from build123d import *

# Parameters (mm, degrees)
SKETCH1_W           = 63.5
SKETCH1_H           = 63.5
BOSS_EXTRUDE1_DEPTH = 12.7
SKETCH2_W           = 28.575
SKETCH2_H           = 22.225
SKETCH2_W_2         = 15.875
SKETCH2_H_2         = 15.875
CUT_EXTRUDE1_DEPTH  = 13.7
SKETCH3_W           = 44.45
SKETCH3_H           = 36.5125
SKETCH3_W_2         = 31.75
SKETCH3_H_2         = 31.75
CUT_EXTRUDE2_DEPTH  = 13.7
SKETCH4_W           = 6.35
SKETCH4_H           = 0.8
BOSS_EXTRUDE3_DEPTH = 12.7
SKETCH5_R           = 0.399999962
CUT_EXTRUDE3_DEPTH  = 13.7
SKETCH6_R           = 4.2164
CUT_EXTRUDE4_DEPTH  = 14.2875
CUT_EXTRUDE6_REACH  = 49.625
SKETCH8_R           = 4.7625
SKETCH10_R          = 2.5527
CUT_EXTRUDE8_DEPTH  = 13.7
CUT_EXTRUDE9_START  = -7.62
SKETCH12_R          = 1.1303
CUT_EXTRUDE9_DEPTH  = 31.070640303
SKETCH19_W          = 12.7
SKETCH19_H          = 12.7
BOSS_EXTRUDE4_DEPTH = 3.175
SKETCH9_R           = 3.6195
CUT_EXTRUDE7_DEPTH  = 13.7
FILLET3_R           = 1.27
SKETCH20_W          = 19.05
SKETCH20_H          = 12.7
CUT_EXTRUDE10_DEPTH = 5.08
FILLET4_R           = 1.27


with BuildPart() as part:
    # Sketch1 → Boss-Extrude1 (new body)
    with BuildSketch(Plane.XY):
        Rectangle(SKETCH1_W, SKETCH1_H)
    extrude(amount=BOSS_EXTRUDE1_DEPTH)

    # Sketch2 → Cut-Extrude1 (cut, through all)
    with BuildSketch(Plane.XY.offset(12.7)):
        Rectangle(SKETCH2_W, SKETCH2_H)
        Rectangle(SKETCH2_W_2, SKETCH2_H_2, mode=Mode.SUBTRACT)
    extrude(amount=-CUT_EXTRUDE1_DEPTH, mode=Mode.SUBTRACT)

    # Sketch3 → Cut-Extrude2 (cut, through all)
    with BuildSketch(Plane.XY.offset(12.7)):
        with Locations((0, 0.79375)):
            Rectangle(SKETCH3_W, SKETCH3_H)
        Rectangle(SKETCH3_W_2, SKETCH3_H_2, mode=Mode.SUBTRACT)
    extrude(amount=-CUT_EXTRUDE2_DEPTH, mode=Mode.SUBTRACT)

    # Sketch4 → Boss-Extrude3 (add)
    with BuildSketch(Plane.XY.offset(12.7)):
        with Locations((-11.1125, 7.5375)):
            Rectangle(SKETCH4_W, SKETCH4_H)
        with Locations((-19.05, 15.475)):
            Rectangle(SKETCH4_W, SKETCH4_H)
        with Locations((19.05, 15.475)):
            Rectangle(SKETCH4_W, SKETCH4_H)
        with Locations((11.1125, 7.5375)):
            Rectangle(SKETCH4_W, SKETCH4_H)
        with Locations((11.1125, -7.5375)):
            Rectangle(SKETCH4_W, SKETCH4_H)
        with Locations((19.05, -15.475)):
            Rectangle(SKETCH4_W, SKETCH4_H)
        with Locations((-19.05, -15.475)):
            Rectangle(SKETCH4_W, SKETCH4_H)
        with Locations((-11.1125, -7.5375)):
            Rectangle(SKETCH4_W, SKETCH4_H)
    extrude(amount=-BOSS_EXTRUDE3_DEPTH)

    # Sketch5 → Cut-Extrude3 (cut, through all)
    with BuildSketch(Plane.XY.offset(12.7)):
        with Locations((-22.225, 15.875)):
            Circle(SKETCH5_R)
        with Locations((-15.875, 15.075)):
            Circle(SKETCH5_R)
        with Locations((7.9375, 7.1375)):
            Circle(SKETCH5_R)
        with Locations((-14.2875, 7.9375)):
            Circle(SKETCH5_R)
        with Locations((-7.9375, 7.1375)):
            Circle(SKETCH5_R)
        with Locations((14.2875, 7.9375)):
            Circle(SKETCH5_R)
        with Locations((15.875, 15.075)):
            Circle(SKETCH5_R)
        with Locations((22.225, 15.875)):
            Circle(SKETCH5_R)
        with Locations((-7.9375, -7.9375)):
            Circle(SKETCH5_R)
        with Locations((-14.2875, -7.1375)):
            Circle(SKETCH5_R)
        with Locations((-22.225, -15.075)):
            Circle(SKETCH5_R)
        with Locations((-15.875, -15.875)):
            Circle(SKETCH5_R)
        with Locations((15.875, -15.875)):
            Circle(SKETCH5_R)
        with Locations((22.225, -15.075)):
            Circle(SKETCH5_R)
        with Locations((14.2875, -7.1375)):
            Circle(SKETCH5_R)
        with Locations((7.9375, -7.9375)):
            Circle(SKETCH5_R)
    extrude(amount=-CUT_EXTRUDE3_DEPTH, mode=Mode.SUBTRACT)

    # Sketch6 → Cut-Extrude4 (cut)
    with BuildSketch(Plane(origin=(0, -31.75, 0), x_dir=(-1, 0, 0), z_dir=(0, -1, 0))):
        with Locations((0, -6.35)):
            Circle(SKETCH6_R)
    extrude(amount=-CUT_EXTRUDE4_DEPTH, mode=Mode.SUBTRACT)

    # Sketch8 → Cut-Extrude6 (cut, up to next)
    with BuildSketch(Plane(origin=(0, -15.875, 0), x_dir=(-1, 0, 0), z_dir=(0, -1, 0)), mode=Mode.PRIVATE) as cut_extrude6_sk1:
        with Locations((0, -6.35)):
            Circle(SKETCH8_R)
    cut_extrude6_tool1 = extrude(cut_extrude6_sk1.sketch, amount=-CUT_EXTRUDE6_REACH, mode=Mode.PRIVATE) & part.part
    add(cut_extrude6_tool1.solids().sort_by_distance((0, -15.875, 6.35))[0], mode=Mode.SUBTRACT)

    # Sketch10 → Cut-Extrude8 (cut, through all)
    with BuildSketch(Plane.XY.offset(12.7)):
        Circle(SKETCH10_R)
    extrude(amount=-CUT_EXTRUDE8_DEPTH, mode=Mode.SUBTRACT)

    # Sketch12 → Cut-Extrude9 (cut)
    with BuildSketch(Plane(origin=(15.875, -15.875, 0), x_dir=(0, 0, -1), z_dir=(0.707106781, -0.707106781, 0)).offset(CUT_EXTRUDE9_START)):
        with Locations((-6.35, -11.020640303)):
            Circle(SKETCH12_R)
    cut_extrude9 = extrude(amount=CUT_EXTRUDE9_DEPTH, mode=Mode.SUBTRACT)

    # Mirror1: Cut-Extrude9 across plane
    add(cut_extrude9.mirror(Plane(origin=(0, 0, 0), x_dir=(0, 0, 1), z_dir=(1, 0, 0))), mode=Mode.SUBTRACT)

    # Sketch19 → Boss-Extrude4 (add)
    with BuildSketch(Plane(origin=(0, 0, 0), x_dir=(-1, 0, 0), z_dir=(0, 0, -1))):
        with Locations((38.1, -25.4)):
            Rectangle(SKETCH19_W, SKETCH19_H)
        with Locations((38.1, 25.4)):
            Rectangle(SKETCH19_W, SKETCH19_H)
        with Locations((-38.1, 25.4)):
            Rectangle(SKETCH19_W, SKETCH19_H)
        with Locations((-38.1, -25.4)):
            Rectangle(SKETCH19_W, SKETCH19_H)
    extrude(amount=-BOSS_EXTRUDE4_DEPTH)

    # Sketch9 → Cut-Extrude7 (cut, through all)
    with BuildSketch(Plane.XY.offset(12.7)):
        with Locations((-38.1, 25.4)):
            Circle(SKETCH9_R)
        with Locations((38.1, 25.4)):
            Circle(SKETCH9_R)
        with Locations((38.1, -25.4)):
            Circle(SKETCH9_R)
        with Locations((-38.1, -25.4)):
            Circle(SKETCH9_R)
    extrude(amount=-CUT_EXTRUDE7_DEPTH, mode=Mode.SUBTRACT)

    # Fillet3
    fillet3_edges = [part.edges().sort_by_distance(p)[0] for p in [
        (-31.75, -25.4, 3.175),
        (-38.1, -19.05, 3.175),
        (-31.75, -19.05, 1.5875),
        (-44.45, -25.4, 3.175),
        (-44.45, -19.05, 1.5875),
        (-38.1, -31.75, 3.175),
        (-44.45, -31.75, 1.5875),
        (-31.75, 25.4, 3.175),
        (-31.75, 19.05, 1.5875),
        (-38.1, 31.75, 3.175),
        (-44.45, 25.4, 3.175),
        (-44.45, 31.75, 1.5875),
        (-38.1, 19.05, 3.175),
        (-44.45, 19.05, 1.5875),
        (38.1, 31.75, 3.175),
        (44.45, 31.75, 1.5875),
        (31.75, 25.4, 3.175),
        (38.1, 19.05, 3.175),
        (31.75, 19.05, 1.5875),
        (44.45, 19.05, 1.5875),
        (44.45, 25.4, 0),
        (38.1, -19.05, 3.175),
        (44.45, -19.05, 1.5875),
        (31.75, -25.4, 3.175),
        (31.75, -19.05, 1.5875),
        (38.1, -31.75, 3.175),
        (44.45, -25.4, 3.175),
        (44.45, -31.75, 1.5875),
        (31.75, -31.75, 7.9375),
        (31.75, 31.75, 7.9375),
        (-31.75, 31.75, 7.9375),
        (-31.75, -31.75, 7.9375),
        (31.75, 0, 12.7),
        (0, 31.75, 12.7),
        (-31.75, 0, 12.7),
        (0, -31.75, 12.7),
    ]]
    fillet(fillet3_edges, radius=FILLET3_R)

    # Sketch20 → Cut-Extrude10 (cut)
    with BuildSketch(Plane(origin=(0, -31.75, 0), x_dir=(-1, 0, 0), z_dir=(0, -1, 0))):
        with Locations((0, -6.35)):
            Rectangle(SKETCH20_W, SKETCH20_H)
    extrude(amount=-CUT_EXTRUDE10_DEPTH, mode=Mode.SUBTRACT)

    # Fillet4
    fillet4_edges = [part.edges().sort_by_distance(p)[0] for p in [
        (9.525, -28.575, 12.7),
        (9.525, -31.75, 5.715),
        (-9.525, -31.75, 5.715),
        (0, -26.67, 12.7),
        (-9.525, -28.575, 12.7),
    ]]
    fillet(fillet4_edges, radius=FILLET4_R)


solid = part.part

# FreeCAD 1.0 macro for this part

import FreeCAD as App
import Part
import Sketcher

V = App.Vector
Q = App.Units.Quantity


def edges_at(feature, points):
    """Names of the edges that pass closest to the given points."""
    edges = feature.Shape.Edges
    near = lambda p: min(range(len(edges)), key=lambda i: edges[i].distToShape(Part.Vertex(*p))[0])
    return sorted({f"Edge{near(p) + 1}" for p in points})

doc = App.newDocument("Part")
body = doc.addObject("PartDesign::Body", "Body")
body.AllowCompound = True

# Sketch on XY plane
sketch1 = body.newObject("Sketcher::SketchObject", "Sketch")
sketch1.AttachmentSupport = (doc.getObject("XY_Plane"), [""])
sketch1.MapMode = "FlatFace"
sketch1.addGeometry([
    Part.LineSegment(V(-32, 32, 0), V(-32, -32, 0)),
    Part.LineSegment(V(-32, -32, 0), V(32, -32, 0)),
    Part.LineSegment(V(32, -32, 0), V(32, 32, 0)),
    Part.LineSegment(V(32, 32, 0), V(-32, 32, 0)),
], False)
sketch1.addConstraint([
    Sketcher.Constraint("Coincident", 0, 2, 1, 1),
    Sketcher.Constraint("Coincident", 1, 2, 2, 1),
    Sketcher.Constraint("Coincident", 2, 2, 3, 1),
    Sketcher.Constraint("Coincident", 3, 2, 0, 1),
    Sketcher.Constraint("Vertical", 0),
    Sketcher.Constraint("Horizontal", 1),
    Sketcher.Constraint("Vertical", 2),
    Sketcher.Constraint("Horizontal", 3),
    Sketcher.Constraint("Symmetric", 0, 2, 2, 2, -1, 1),
    Sketcher.Constraint("Equal", 3, 0),
    Sketcher.Constraint("DistanceX", 1, 1, 1, 2, Q("2.5 in")),
])
pad1 = body.newObject("PartDesign::Pad", "Pad")
pad1.Profile = sketch1
pad1.Length = Q("0.5 in")

# Sketch on XY plane
sketch2 = body.newObject("Sketcher::SketchObject", "Sketch001")
sketch2.AttachmentSupport = (doc.getObject("XY_Plane"), [""])
sketch2.MapMode = "FlatFace"
sketch2.AttachmentOffset = App.Placement(V(0, 0, 0.5 * 25.4), App.Rotation())
sketch2.addGeometry([
    Part.LineSegment(V(-14, 11, 0), V(-14, -11, 0)),  # 0
    Part.LineSegment(V(-14, -11, 0), V(14, -11, 0)),  # 1
    Part.LineSegment(V(14, -11, 0), V(14, 11, 0)),  # 2
    Part.LineSegment(V(14, 11, 0), V(-14, 11, 0)),  # 3
    Part.LineSegment(V(8, -8, 0), V(-8, -8, 0)),  # 4
    Part.LineSegment(V(-8, -8, 0), V(-8, 8, 0)),  # 5
    Part.LineSegment(V(-8, 8, 0), V(8, 8, 0)),  # 6
    Part.LineSegment(V(8, 8, 0), V(8, -8, 0)),  # 7
], False)
sketch2.addConstraint([
    Sketcher.Constraint("Coincident", 0, 2, 1, 1),
    Sketcher.Constraint("Coincident", 1, 2, 2, 1),
    Sketcher.Constraint("Coincident", 2, 2, 3, 1),
    Sketcher.Constraint("Coincident", 3, 2, 0, 1),
    Sketcher.Constraint("Coincident", 4, 2, 5, 1),
    Sketcher.Constraint("Coincident", 5, 2, 6, 1),
    Sketcher.Constraint("Coincident", 6, 2, 7, 1),
    Sketcher.Constraint("Coincident", 7, 2, 4, 1),
    Sketcher.Constraint("Vertical", 0),
    Sketcher.Constraint("Horizontal", 1),
    Sketcher.Constraint("Vertical", 2),
    Sketcher.Constraint("Horizontal", 3),
    Sketcher.Constraint("Horizontal", 4),
    Sketcher.Constraint("Vertical", 5),
    Sketcher.Constraint("Horizontal", 6),
    Sketcher.Constraint("Vertical", 7),
    Sketcher.Constraint("Symmetric", 0, 2, 2, 2, -1, 1),
    Sketcher.Constraint("Symmetric", 4, 2, 6, 2, -1, 1),
    Sketcher.Constraint("Equal", 6, 5),
    Sketcher.Constraint("DistanceX", 1, 1, 1, 2, Q("1.125 in")),
    Sketcher.Constraint("DistanceX", 4, 2, 4, 1, Q("0.625 in")),
    Sketcher.Constraint("DistanceY", 0, 2, 0, 1, Q("0.875 in")),
])
pocket1 = body.newObject("PartDesign::Pocket", "Pocket")
pocket1.Profile = sketch2
pocket1.Type = "ThroughAll"

# Sketch on XY plane
sketch3 = body.newObject("Sketcher::SketchObject", "Sketch002")
sketch3.AttachmentSupport = (doc.getObject("XY_Plane"), [""])
sketch3.MapMode = "FlatFace"
sketch3.AttachmentOffset = App.Placement(V(0, 0, 0.5 * 25.4), App.Rotation())
sketch3.addGeometry([
    Part.LineSegment(V(-22, 19, 0), V(-22, -17, 0)),  # 0
    Part.LineSegment(V(-22, -17, 0), V(22, -17, 0)),  # 1
    Part.LineSegment(V(22, -17, 0), V(22, 19, 0)),  # 2
    Part.LineSegment(V(22, 19, 0), V(-22, 19, 0)),  # 3
    Part.LineSegment(V(16, -16, 0), V(-16, -16, 0)),  # 4
    Part.LineSegment(V(-16, -16, 0), V(-16, 16, 0)),  # 5
    Part.LineSegment(V(-16, 16, 0), V(16, 16, 0)),  # 6
    Part.LineSegment(V(16, 16, 0), V(16, -16, 0)),  # 7
], False)
sketch3.addConstraint([
    Sketcher.Constraint("Coincident", 0, 2, 1, 1),
    Sketcher.Constraint("Coincident", 1, 2, 2, 1),
    Sketcher.Constraint("Coincident", 2, 2, 3, 1),
    Sketcher.Constraint("Coincident", 3, 2, 0, 1),
    Sketcher.Constraint("Coincident", 4, 2, 5, 1),
    Sketcher.Constraint("Coincident", 5, 2, 6, 1),
    Sketcher.Constraint("Coincident", 6, 2, 7, 1),
    Sketcher.Constraint("Coincident", 7, 2, 4, 1),
    Sketcher.Constraint("Vertical", 0),
    Sketcher.Constraint("Horizontal", 1),
    Sketcher.Constraint("Vertical", 2),
    Sketcher.Constraint("Horizontal", 3),
    Sketcher.Constraint("Horizontal", 4),
    Sketcher.Constraint("Vertical", 5),
    Sketcher.Constraint("Horizontal", 6),
    Sketcher.Constraint("Vertical", 7),
    Sketcher.Constraint("Symmetric", 4, 2, 6, 2, -1, 1),
    Sketcher.Constraint("Equal", 6, 5),
    Sketcher.Constraint("DistanceX", 1, 1, 1, 2, Q("1.75 in")),
    Sketcher.Constraint("DistanceX", 4, 2, 4, 1, Q("1.25 in")),
    Sketcher.Constraint("DistanceX", 4, 2, 1, 2, Q("1.5 in")),
    Sketcher.Constraint("DistanceY", 0, 2, 0, 1, Q("1.4375 in")),
    Sketcher.Constraint("DistanceY", -1, 1, 2, 2, Q("0.75 in")),
])
pocket2 = body.newObject("PartDesign::Pocket", "Pocket001")
pocket2.Profile = sketch3
pocket2.Type = "ThroughAll"

# Sketch on XY plane
sketch4 = body.newObject("Sketcher::SketchObject", "Sketch003")
sketch4.AttachmentSupport = (doc.getObject("XY_Plane"), [""])
sketch4.MapMode = "FlatFace"
sketch4.AttachmentOffset = App.Placement(V(0, 0, 0.5 * 25.4), App.Rotation())
sketch4.addGeometry([
    Part.LineSegment(V(-14.3, 7.9, 0), V(-14.3, 7.1, 0)),  # 0
    Part.LineSegment(V(-14.3, 7.1, 0), V(-7.9, 7.1, 0)),  # 1
    Part.LineSegment(V(-7.9, 7.1, 0), V(-7.9, 7.9, 0)),  # 2
    Part.LineSegment(V(-7.9, 7.9, 0), V(-14.3, 7.9, 0)),  # 3
    Part.LineSegment(V(-22.2, 15.9, 0), V(-22.2, 15.1, 0)),  # 4
    Part.LineSegment(V(-22.2, 15.1, 0), V(-15.9, 15.1, 0)),  # 5
    Part.LineSegment(V(-15.9, 15.1, 0), V(-15.9, 15.9, 0)),  # 6
    Part.LineSegment(V(-15.9, 15.9, 0), V(-22.2, 15.9, 0)),  # 7
    Part.LineSegment(V(15.9, 15.9, 0), V(15.9, 15.1, 0)),  # 8
    Part.LineSegment(V(15.9, 15.1, 0), V(22.2, 15.1, 0)),  # 9
    Part.LineSegment(V(22.2, 15.1, 0), V(22.2, 15.9, 0)),  # 10
    Part.LineSegment(V(22.2, 15.9, 0), V(15.9, 15.9, 0)),  # 11
    Part.LineSegment(V(7.9, 7.9, 0), V(7.9, 7.1, 0)),  # 12
    Part.LineSegment(V(7.9, 7.1, 0), V(14.3, 7.1, 0)),  # 13
    Part.LineSegment(V(14.3, 7.1, 0), V(14.3, 7.9, 0)),  # 14
    Part.LineSegment(V(14.3, 7.9, 0), V(7.9, 7.9, 0)),  # 15
    Part.LineSegment(V(7.9, -7.1, 0), V(7.9, -7.9, 0)),  # 16
    Part.LineSegment(V(7.9, -7.9, 0), V(14.3, -7.9, 0)),  # 17
    Part.LineSegment(V(14.3, -7.9, 0), V(14.3, -7.1, 0)),  # 18
    Part.LineSegment(V(14.3, -7.1, 0), V(7.9, -7.1, 0)),  # 19
    Part.LineSegment(V(15.9, -15.1, 0), V(15.9, -15.9, 0)),  # 20
    Part.LineSegment(V(15.9, -15.9, 0), V(22.2, -15.9, 0)),  # 21
    Part.LineSegment(V(22.2, -15.9, 0), V(22.2, -15.1, 0)),  # 22
    Part.LineSegment(V(22.2, -15.1, 0), V(15.9, -15.1, 0)),  # 23
    Part.LineSegment(V(-22.2, -15.1, 0), V(-22.2, -15.9, 0)),  # 24
    Part.LineSegment(V(-22.2, -15.9, 0), V(-15.9, -15.9, 0)),  # 25
    Part.LineSegment(V(-15.9, -15.9, 0), V(-15.9, -15.1, 0)),  # 26
    Part.LineSegment(V(-15.9, -15.1, 0), V(-22.2, -15.1, 0)),  # 27
    Part.LineSegment(V(-14.3, -7.1, 0), V(-14.3, -7.9, 0)),  # 28
    Part.LineSegment(V(-14.3, -7.9, 0), V(-7.9, -7.9, 0)),  # 29
    Part.LineSegment(V(-7.9, -7.9, 0), V(-7.9, -7.1, 0)),  # 30
    Part.LineSegment(V(-7.9, -7.1, 0), V(-14.3, -7.1, 0)),  # 31
], False)
sketch4.addConstraint([
    Sketcher.Constraint("Coincident", 0, 2, 1, 1),
    Sketcher.Constraint("Coincident", 1, 2, 2, 1),
    Sketcher.Constraint("Coincident", 2, 2, 3, 1),
    Sketcher.Constraint("Coincident", 3, 2, 0, 1),
    Sketcher.Constraint("Coincident", 4, 2, 5, 1),
    Sketcher.Constraint("Coincident", 5, 2, 6, 1),
    Sketcher.Constraint("Coincident", 6, 2, 7, 1),
    Sketcher.Constraint("Coincident", 7, 2, 4, 1),
    Sketcher.Constraint("Coincident", 8, 2, 9, 1),
    Sketcher.Constraint("Coincident", 9, 2, 10, 1),
    Sketcher.Constraint("Coincident", 10, 2, 11, 1),
    Sketcher.Constraint("Coincident", 11, 2, 8, 1),
    Sketcher.Constraint("Coincident", 12, 2, 13, 1),
    Sketcher.Constraint("Coincident", 13, 2, 14, 1),
    Sketcher.Constraint("Coincident", 14, 2, 15, 1),
    Sketcher.Constraint("Coincident", 15, 2, 12, 1),
    Sketcher.Constraint("Coincident", 16, 2, 17, 1),
    Sketcher.Constraint("Coincident", 17, 2, 18, 1),
    Sketcher.Constraint("Coincident", 18, 2, 19, 1),
    Sketcher.Constraint("Coincident", 19, 2, 16, 1),
    Sketcher.Constraint("Coincident", 20, 2, 21, 1),
    Sketcher.Constraint("Coincident", 21, 2, 22, 1),
    Sketcher.Constraint("Coincident", 22, 2, 23, 1),
    Sketcher.Constraint("Coincident", 23, 2, 20, 1),
    Sketcher.Constraint("Coincident", 24, 2, 25, 1),
    Sketcher.Constraint("Coincident", 25, 2, 26, 1),
    Sketcher.Constraint("Coincident", 26, 2, 27, 1),
    Sketcher.Constraint("Coincident", 27, 2, 24, 1),
    Sketcher.Constraint("Coincident", 28, 2, 29, 1),
    Sketcher.Constraint("Coincident", 29, 2, 30, 1),
    Sketcher.Constraint("Coincident", 30, 2, 31, 1),
    Sketcher.Constraint("Coincident", 31, 2, 28, 1),
    Sketcher.Constraint("Vertical", 0),
    Sketcher.Constraint("Horizontal", 1),
    Sketcher.Constraint("Vertical", 2),
    Sketcher.Constraint("Horizontal", 3),
    Sketcher.Constraint("Vertical", 4),
    Sketcher.Constraint("Horizontal", 5),
    Sketcher.Constraint("Vertical", 6),
    Sketcher.Constraint("Horizontal", 7),
    Sketcher.Constraint("Vertical", 8),
    Sketcher.Constraint("Horizontal", 9),
    Sketcher.Constraint("Vertical", 10),
    Sketcher.Constraint("Horizontal", 11),
    Sketcher.Constraint("Vertical", 12),
    Sketcher.Constraint("Horizontal", 13),
    Sketcher.Constraint("Vertical", 14),
    Sketcher.Constraint("Horizontal", 15),
    Sketcher.Constraint("Vertical", 16),
    Sketcher.Constraint("Horizontal", 17),
    Sketcher.Constraint("Vertical", 18),
    Sketcher.Constraint("Horizontal", 19),
    Sketcher.Constraint("Vertical", 20),
    Sketcher.Constraint("Horizontal", 21),
    Sketcher.Constraint("Vertical", 22),
    Sketcher.Constraint("Horizontal", 23),
    Sketcher.Constraint("Vertical", 24),
    Sketcher.Constraint("Horizontal", 25),
    Sketcher.Constraint("Vertical", 26),
    Sketcher.Constraint("Horizontal", 27),
    Sketcher.Constraint("Vertical", 28),
    Sketcher.Constraint("Horizontal", 29),
    Sketcher.Constraint("Vertical", 30),
    Sketcher.Constraint("Horizontal", 31),
    Sketcher.Constraint("Symmetric", 2, 2, 16, 2, -1, 1),
    Sketcher.Constraint("Symmetric", 0, 2, 18, 2, -1, 1),
    Sketcher.Constraint("Symmetric", 6, 2, 20, 2, -1, 1),
    Sketcher.Constraint("Symmetric", 4, 2, 22, 2, -1, 1),
    Sketcher.Constraint("Symmetric", 10, 2, 24, 2, -1, 1),
    Sketcher.Constraint("Symmetric", 8, 2, 26, 2, -1, 1),
    Sketcher.Constraint("Symmetric", 14, 2, 28, 2, -1, 1),
    Sketcher.Constraint("Symmetric", 12, 2, 30, 2, -1, 1),
    Sketcher.Constraint("Symmetric", 5, 2, 8, 2, -2),
    Sketcher.Constraint("Symmetric", 7, 2, 10, 2, -2),
    Sketcher.Constraint("Symmetric", 1, 2, 12, 2, -2),
    Sketcher.Constraint("Symmetric", 3, 2, 14, 2, -2),
    Sketcher.Constraint("Equal", 3, 5),
    Sketcher.Constraint("Equal", 2, 4),
    Sketcher.Constraint("DistanceX", 1, 1, 1, 2, Q("0.25 in")),
    Sketcher.Constraint("DistanceX", 5, 2, 8, 2, Q("1.25 in")),
    Sketcher.Constraint("DistanceX", 0, 2, -1, 1, Q("0.5625 in")),
    Sketcher.Constraint("DistanceY", -1, 1, 2, 2, Q("0.3125 in")),
    Sketcher.Constraint("DistanceY", -1, 1, 6, 2, Q("0.625 in")),
    Sketcher.Constraint("DistanceY", 0, 2, 0, 1, Q("0.8 mm")),
])
pad2 = body.newObject("PartDesign::Pad", "Pad001")
pad2.Profile = sketch4
pad2.Length = Q("0.5 in")
pad2.Reversed = True

# Sketch on XY plane
sketch5 = body.newObject("Sketcher::SketchObject", "Sketch004")
sketch5.AttachmentSupport = (doc.getObject("XY_Plane"), [""])
sketch5.MapMode = "FlatFace"
sketch5.AttachmentOffset = App.Placement(V(0, 0, 0.5 * 25.4), App.Rotation())
sketch5.addGeometry([
    Part.Circle(V(-22.23, 15.88, 0), V(0, 0, 1), 0.4),  # 0
    Part.Circle(V(-15.88, 15.07, 0), V(0, 0, 1), 0.4),  # 1
    Part.Circle(V(7.94, 7.14, 0), V(0, 0, 1), 0.4),  # 2
    Part.Circle(V(-14.29, 7.94, 0), V(0, 0, 1), 0.4),  # 3
    Part.Circle(V(-7.94, 7.14, 0), V(0, 0, 1), 0.4),  # 4
    Part.Circle(V(14.29, 7.94, 0), V(0, 0, 1), 0.4),  # 5
    Part.Circle(V(15.88, 15.07, 0), V(0, 0, 1), 0.4),  # 6
    Part.Circle(V(22.23, 15.88, 0), V(0, 0, 1), 0.4),  # 7
    Part.Circle(V(-7.94, -7.94, 0), V(0, 0, 1), 0.4),  # 8
    Part.Circle(V(-14.29, -7.14, 0), V(0, 0, 1), 0.4),  # 9
    Part.Circle(V(-22.23, -15.07, 0), V(0, 0, 1), 0.4),  # 10
    Part.Circle(V(-15.88, -15.88, 0), V(0, 0, 1), 0.4),  # 11
    Part.Circle(V(15.88, -15.88, 0), V(0, 0, 1), 0.4),  # 12
    Part.Circle(V(22.23, -15.07, 0), V(0, 0, 1), 0.4),  # 13
    Part.Circle(V(14.29, -7.14, 0), V(0, 0, 1), 0.4),  # 14
    Part.Circle(V(7.94, -7.94, 0), V(0, 0, 1), 0.4),  # 15
], False)
sketch5.addConstraint([
    Sketcher.Constraint("Equal", 0, 1),
    Sketcher.Constraint("Equal", 1, 2),
    Sketcher.Constraint("Equal", 2, 3),
    Sketcher.Constraint("Equal", 3, 4),
    Sketcher.Constraint("Equal", 4, 5),
    Sketcher.Constraint("Equal", 5, 6),
    Sketcher.Constraint("Equal", 6, 7),
    Sketcher.Constraint("Equal", 7, 8),
    Sketcher.Constraint("Equal", 8, 9),
    Sketcher.Constraint("Equal", 9, 10),
    Sketcher.Constraint("Equal", 10, 11),
    Sketcher.Constraint("Equal", 11, 12),
    Sketcher.Constraint("Equal", 12, 13),
    Sketcher.Constraint("Equal", 13, 14),
    Sketcher.Constraint("Equal", 14, 15),
    Sketcher.Constraint("Symmetric", 2, 3, 4, 3, -2),
    Sketcher.Constraint("Symmetric", 3, 3, 5, 3, -2),
    Sketcher.Constraint("Symmetric", 1, 3, 6, 3, -2),
    Sketcher.Constraint("Symmetric", 0, 3, 7, 3, -2),
    Sketcher.Constraint("Symmetric", 11, 3, 12, 3, -2),
    Sketcher.Constraint("Symmetric", 10, 3, 13, 3, -2),
    Sketcher.Constraint("Symmetric", 9, 3, 14, 3, -2),
    Sketcher.Constraint("Symmetric", 8, 3, 15, 3, -2),
    Sketcher.Constraint("Vertical", 4, 3, 8, 3),
    Sketcher.Constraint("Vertical", 3, 3, 9, 3),
    Sketcher.Constraint("Vertical", 0, 3, 10, 3),
    Sketcher.Constraint("Vertical", 1, 3, 11, 3),
    Sketcher.Constraint("Diameter", 0, Q("0.8 mm")),
    Sketcher.Constraint("DistanceX", 0, 3, 1, 3, Q("0.25 in")),
    Sketcher.Constraint("DistanceX", 3, 3, 4, 3, Q("0.25 in")),
    Sketcher.Constraint("DistanceX", 1, 3, 6, 3, Q("1.25 in")),
    Sketcher.Constraint("DistanceY", -1, 1, 0, 3, Q("0.625 in")),
    Sketcher.Constraint("DistanceX", -1, 1, 2, 3, Q("0.3125 in")),
    Sketcher.Constraint("DistanceY", -1, 1, 3, 3, Q("0.3125 in")),
    Sketcher.Constraint("DistanceY", 8, 3, -1, 1, Q("0.3125 in")),
    Sketcher.Constraint("DistanceY", 11, 3, -1, 1, Q("0.625 in")),
    Sketcher.Constraint("DistanceY", 2, 3, 1, 3, Q("0.3125 in")),
    Sketcher.Constraint("DistanceY", 10, 3, 9, 3, Q("0.3125 in")),
    Sketcher.Constraint("DistanceY", -1, 1, 1, 3, Q("15.075 mm")),
    Sketcher.Constraint("DistanceY", 9, 3, -1, 1, Q("7.1375 mm")),
])
pocket3 = body.newObject("PartDesign::Pocket", "Pocket002")
pocket3.Profile = sketch5
pocket3.Type = "ThroughAll"

# Sketch on XZ plane
sketch6 = body.newObject("Sketcher::SketchObject", "Sketch005")
sketch6.AttachmentSupport = (doc.getObject("XZ_Plane"), [""])
sketch6.MapMode = "FlatFace"
sketch6.AttachmentOffset = App.Placement(V(0, 0, 1.25 * 25.4), App.Rotation())
sketch6.addGeometry(Part.Circle(V(0, 6.3, 0), V(0, 0, 1), 4.2), False)
sketch6.addConstraint([
    Sketcher.Constraint("PointOnObject", 0, 3, -2),
    Sketcher.Constraint("Diameter", 0, Q("0.332 in")),
    Sketcher.Constraint("DistanceY", -1, 1, 0, 3, Q("0.25 in")),
])
pocket4 = body.newObject("PartDesign::Pocket", "Pocket003")
pocket4.Profile = sketch6
pocket4.Length = Q("0.5625 in")

# Sketch on XZ plane
sketch7 = body.newObject("Sketcher::SketchObject", "Sketch006")
sketch7.AttachmentSupport = (doc.getObject("XZ_Plane"), [""])
sketch7.MapMode = "FlatFace"
sketch7.AttachmentOffset = App.Placement(V(0, 0, 0.625 * 25.4), App.Rotation())
sketch7.addGeometry(Part.Circle(V(0, 6.3, 0), V(0, 0, 1), 4.8), False)
sketch7.addConstraint([
    Sketcher.Constraint("PointOnObject", 0, 3, -2),
    Sketcher.Constraint("Diameter", 0, Q("0.375 in")),
    Sketcher.Constraint("DistanceY", -1, 1, 0, 3, Q("0.25 in")),
])
pocket5 = body.newObject("PartDesign::Pocket", "Pocket004")
pocket5.Profile = sketch7
pocket5.Type = "UpToFirst"

# Sketch on XY plane
sketch8 = body.newObject("Sketcher::SketchObject", "Sketch007")
sketch8.AttachmentSupport = (doc.getObject("XY_Plane"), [""])
sketch8.MapMode = "FlatFace"
sketch8.AttachmentOffset = App.Placement(V(0, 0, 0.5 * 25.4), App.Rotation())
sketch8.addGeometry(Part.Circle(V(0, 0, 0), V(0, 0, 1), 2.6), False)
sketch8.addConstraint([
    Sketcher.Constraint("Coincident", 0, 3, -1, 1),
    Sketcher.Constraint("Diameter", 0, Q("0.201 in")),
])
pocket6 = body.newObject("PartDesign::Pocket", "Pocket005")
pocket6.Profile = sketch8
pocket6.Type = "ThroughAll"

# Sketch on an angled plane
sketch9 = body.newObject("Sketcher::SketchObject", "Sketch008")
sketch9.Placement = App.Placement(V(10.486846, -10.486846, 0), App.Rotation(V(0, 0, -1), V(0.707106781, 0.707106781, 0), V(0.707106781, -0.707106781, 0), "ZXY"))
sketch9.addGeometry(Part.Circle(V(-6.3, -11, 0), V(0, 0, 1), 1.1), False)
sketch9.addConstraint([
    Sketcher.Constraint("Diameter", 0, Q("0.089 in")),
    Sketcher.Constraint("DistanceX", 0, 3, -1, 1, Q("0.25 in")),
    Sketcher.Constraint("DistanceY", 0, 3, -1, 1, Q("11.02064 mm")),
])
pocket7 = body.newObject("PartDesign::Pocket", "Pocket006")
pocket7.Profile = sketch9
pocket7.Length = 31.07064
pocket7.Reversed = True
doc.recompute()

mirrored = body.newObject("PartDesign::Mirrored", "Mirrored")
mirrored.Originals = [pocket7]
mirrored.MirrorPlane = (doc.getObject("YZ_Plane"), [""])
body.Tip = mirrored

# Sketch on XY plane
sketch10 = body.newObject("Sketcher::SketchObject", "Sketch009")
sketch10.AttachmentSupport = (doc.getObject("XY_Plane"), [""])
sketch10.MapMode = "FlatFace"
sketch10.addGeometry([
    Part.LineSegment(V(-32, -19, 0), V(-32, -32, 0)),  # 0
    Part.LineSegment(V(-32, -32, 0), V(-44, -32, 0)),  # 1
    Part.LineSegment(V(-44, -32, 0), V(-44, -19, 0)),  # 2
    Part.LineSegment(V(-44, -19, 0), V(-32, -19, 0)),  # 3
    Part.LineSegment(V(-32, 32, 0), V(-32, 19, 0)),  # 4
    Part.LineSegment(V(-32, 19, 0), V(-44, 19, 0)),  # 5
    Part.LineSegment(V(-44, 19, 0), V(-44, 32, 0)),  # 6
    Part.LineSegment(V(-44, 32, 0), V(-32, 32, 0)),  # 7
    Part.LineSegment(V(44, 32, 0), V(44, 19, 0)),  # 8
    Part.LineSegment(V(44, 19, 0), V(32, 19, 0)),  # 9
    Part.LineSegment(V(32, 19, 0), V(32, 32, 0)),  # 10
    Part.LineSegment(V(32, 32, 0), V(44, 32, 0)),  # 11
    Part.LineSegment(V(44, -19, 0), V(44, -32, 0)),  # 12
    Part.LineSegment(V(44, -32, 0), V(32, -32, 0)),  # 13
    Part.LineSegment(V(32, -32, 0), V(32, -19, 0)),  # 14
    Part.LineSegment(V(32, -19, 0), V(44, -19, 0)),  # 15
], False)
sketch10.addConstraint([
    Sketcher.Constraint("Coincident", 0, 2, 1, 1),
    Sketcher.Constraint("Coincident", 1, 2, 2, 1),
    Sketcher.Constraint("Coincident", 2, 2, 3, 1),
    Sketcher.Constraint("Coincident", 3, 2, 0, 1),
    Sketcher.Constraint("Coincident", 4, 2, 5, 1),
    Sketcher.Constraint("Coincident", 5, 2, 6, 1),
    Sketcher.Constraint("Coincident", 6, 2, 7, 1),
    Sketcher.Constraint("Coincident", 7, 2, 4, 1),
    Sketcher.Constraint("Coincident", 8, 2, 9, 1),
    Sketcher.Constraint("Coincident", 9, 2, 10, 1),
    Sketcher.Constraint("Coincident", 10, 2, 11, 1),
    Sketcher.Constraint("Coincident", 11, 2, 8, 1),
    Sketcher.Constraint("Coincident", 12, 2, 13, 1),
    Sketcher.Constraint("Coincident", 13, 2, 14, 1),
    Sketcher.Constraint("Coincident", 14, 2, 15, 1),
    Sketcher.Constraint("Coincident", 15, 2, 12, 1),
    Sketcher.Constraint("Vertical", 0),
    Sketcher.Constraint("Horizontal", 1),
    Sketcher.Constraint("Vertical", 2),
    Sketcher.Constraint("Horizontal", 3),
    Sketcher.Constraint("Vertical", 4),
    Sketcher.Constraint("Horizontal", 5),
    Sketcher.Constraint("Vertical", 6),
    Sketcher.Constraint("Horizontal", 7),
    Sketcher.Constraint("Vertical", 8),
    Sketcher.Constraint("Horizontal", 9),
    Sketcher.Constraint("Vertical", 10),
    Sketcher.Constraint("Horizontal", 11),
    Sketcher.Constraint("Vertical", 12),
    Sketcher.Constraint("Horizontal", 13),
    Sketcher.Constraint("Vertical", 14),
    Sketcher.Constraint("Horizontal", 15),
    Sketcher.Constraint("Symmetric", 2, 2, 8, 2, -1, 1),
    Sketcher.Constraint("Symmetric", 0, 2, 10, 2, -1, 1),
    Sketcher.Constraint("Symmetric", 6, 2, 12, 2, -1, 1),
    Sketcher.Constraint("Symmetric", 4, 2, 14, 2, -1, 1),
    Sketcher.Constraint("Symmetric", 5, 2, 8, 2, -2),
    Sketcher.Constraint("Symmetric", 7, 2, 10, 2, -2),
    Sketcher.Constraint("Equal", 15, 0),
    Sketcher.Constraint("DistanceX", 1, 2, 1, 1, Q("0.5 in")),
    Sketcher.Constraint("DistanceY", 0, 2, 4, 2, Q("2 in")),
    Sketcher.Constraint("DistanceX", 4, 2, 8, 2, Q("3 in")),
])
pad3 = body.newObject("PartDesign::Pad", "Pad002")
pad3.Profile = sketch10
pad3.Length = Q("0.125 in")

# Sketch on XY plane
sketch11 = body.newObject("Sketcher::SketchObject", "Sketch010")
sketch11.AttachmentSupport = (doc.getObject("XY_Plane"), [""])
sketch11.MapMode = "FlatFace"
sketch11.AttachmentOffset = App.Placement(V(0, 0, 0.5 * 25.4), App.Rotation())
sketch11.addGeometry([
    Part.Circle(V(-38.1, 25.4, 0), V(0, 0, 1), 3.6),
    Part.Circle(V(38.1, 25.4, 0), V(0, 0, 1), 3.6),
    Part.Circle(V(38.1, -25.4, 0), V(0, 0, 1), 3.6),
    Part.Circle(V(-38.1, -25.4, 0), V(0, 0, 1), 3.6),
], False)
sketch11.addConstraint([
    Sketcher.Constraint("Equal", 0, 1),
    Sketcher.Constraint("Equal", 1, 2),
    Sketcher.Constraint("Equal", 2, 3),
    Sketcher.Constraint("Symmetric", 0, 3, 2, 3, -1, 1),
    Sketcher.Constraint("Symmetric", 1, 3, 3, 3, -1, 1),
    Sketcher.Constraint("Symmetric", 0, 3, 1, 3, -2),
    Sketcher.Constraint("Diameter", 0, Q("0.285 in")),
    Sketcher.Constraint("DistanceY", -1, 1, 0, 3, Q("1 in")),
    Sketcher.Constraint("DistanceX", 0, 3, 1, 3, Q("3 in")),
])
pocket8 = body.newObject("PartDesign::Pocket", "Pocket007")
pocket8.Profile = sketch11
pocket8.Type = "ThroughAll"
doc.recompute()

fillet = body.newObject("PartDesign::Fillet", "Fillet")
fillet.Base = (pocket8, edges_at(pocket8, [
    (-31.75, -25.4, 3.175),
    (-38.1, -19.05, 3.175),
    (-31.75, -19.05, 1.587),
    (-44.45, -25.4, 3.175),
    (-44.45, -19.05, 1.587),
    (-38.1, -31.75, 3.175),
    (-44.45, -31.75, 1.587),
    (-31.75, 25.4, 3.175),
    (-31.75, 19.05, 1.587),
    (-38.1, 31.75, 3.175),
    (-44.45, 25.4, 3.175),
    (-44.45, 31.75, 1.587),
    (-38.1, 19.05, 3.175),
    (-44.45, 19.05, 1.587),
    (38.1, 31.75, 3.175),
    (44.45, 31.75, 1.587),
    (31.75, 25.4, 3.175),
    (38.1, 19.05, 3.175),
    (31.75, 19.05, 1.587),
    (44.45, 19.05, 1.587),
    (44.45, 25.4, 0),
    (38.1, -19.05, 3.175),
    (44.45, -19.05, 1.587),
    (31.75, -25.4, 3.175),
    (31.75, -19.05, 1.587),
    (38.1, -31.75, 3.175),
    (44.45, -25.4, 3.175),
    (44.45, -31.75, 1.587),
    (31.75, -31.75, 7.938),
    (31.75, 31.75, 7.938),
    (-31.75, 31.75, 7.938),
    (-31.75, -31.75, 7.938),
    (31.75, 0, 12.7),
    (0, 31.75, 12.7),
    (-31.75, 0, 12.7),
    (0, -31.75, 12.7),
]))
fillet.Radius = Q("0.05 in")

# Sketch on XZ plane
sketch12 = body.newObject("Sketcher::SketchObject", "Sketch011")
sketch12.AttachmentSupport = (doc.getObject("XZ_Plane"), [""])
sketch12.MapMode = "FlatFace"
sketch12.AttachmentOffset = App.Placement(V(0, 0, 1.25 * 25.4), App.Rotation())
sketch12.addGeometry([
    Part.LineSegment(V(10, 0, 0), V(10, 13, 0)),
    Part.LineSegment(V(10, 13, 0), V(-10, 13, 0)),
    Part.LineSegment(V(-10, 13, 0), V(-10, 0, 0)),
    Part.LineSegment(V(-10, 0, 0), V(10, 0, 0)),
], False)
sketch12.addConstraint([
    Sketcher.Constraint("Coincident", 0, 2, 1, 1),
    Sketcher.Constraint("Coincident", 1, 2, 2, 1),
    Sketcher.Constraint("Coincident", 2, 2, 3, 1),
    Sketcher.Constraint("Coincident", 3, 2, 0, 1),
    Sketcher.Constraint("Vertical", 0),
    Sketcher.Constraint("Horizontal", 1),
    Sketcher.Constraint("Vertical", 2),
    Sketcher.Constraint("Horizontal", 3),
    Sketcher.Constraint("Symmetric", 2, 2, 3, 2, -1, 1),
    Sketcher.Constraint("DistanceY", 0, 1, 0, 2, Q("0.5 in")),
    Sketcher.Constraint("DistanceX", 1, 2, 1, 1, Q("0.75 in")),
])
pocket9 = body.newObject("PartDesign::Pocket", "Pocket008")
pocket9.Profile = sketch12
pocket9.Length = Q("0.2 in")
doc.recompute()

fillet2 = body.newObject("PartDesign::Fillet", "Fillet001")
fillet2.Base = (pocket9, edges_at(pocket9, [
    (9.525, -28.575, 12.7),
    (9.525, -31.75, 5.715),
    (-9.525, -31.75, 5.715),
    (0, -26.67, 12.7),
    (-9.525, -28.575, 12.7),
]))
fillet2.Radius = Q("0.05 in")

doc.recompute()
